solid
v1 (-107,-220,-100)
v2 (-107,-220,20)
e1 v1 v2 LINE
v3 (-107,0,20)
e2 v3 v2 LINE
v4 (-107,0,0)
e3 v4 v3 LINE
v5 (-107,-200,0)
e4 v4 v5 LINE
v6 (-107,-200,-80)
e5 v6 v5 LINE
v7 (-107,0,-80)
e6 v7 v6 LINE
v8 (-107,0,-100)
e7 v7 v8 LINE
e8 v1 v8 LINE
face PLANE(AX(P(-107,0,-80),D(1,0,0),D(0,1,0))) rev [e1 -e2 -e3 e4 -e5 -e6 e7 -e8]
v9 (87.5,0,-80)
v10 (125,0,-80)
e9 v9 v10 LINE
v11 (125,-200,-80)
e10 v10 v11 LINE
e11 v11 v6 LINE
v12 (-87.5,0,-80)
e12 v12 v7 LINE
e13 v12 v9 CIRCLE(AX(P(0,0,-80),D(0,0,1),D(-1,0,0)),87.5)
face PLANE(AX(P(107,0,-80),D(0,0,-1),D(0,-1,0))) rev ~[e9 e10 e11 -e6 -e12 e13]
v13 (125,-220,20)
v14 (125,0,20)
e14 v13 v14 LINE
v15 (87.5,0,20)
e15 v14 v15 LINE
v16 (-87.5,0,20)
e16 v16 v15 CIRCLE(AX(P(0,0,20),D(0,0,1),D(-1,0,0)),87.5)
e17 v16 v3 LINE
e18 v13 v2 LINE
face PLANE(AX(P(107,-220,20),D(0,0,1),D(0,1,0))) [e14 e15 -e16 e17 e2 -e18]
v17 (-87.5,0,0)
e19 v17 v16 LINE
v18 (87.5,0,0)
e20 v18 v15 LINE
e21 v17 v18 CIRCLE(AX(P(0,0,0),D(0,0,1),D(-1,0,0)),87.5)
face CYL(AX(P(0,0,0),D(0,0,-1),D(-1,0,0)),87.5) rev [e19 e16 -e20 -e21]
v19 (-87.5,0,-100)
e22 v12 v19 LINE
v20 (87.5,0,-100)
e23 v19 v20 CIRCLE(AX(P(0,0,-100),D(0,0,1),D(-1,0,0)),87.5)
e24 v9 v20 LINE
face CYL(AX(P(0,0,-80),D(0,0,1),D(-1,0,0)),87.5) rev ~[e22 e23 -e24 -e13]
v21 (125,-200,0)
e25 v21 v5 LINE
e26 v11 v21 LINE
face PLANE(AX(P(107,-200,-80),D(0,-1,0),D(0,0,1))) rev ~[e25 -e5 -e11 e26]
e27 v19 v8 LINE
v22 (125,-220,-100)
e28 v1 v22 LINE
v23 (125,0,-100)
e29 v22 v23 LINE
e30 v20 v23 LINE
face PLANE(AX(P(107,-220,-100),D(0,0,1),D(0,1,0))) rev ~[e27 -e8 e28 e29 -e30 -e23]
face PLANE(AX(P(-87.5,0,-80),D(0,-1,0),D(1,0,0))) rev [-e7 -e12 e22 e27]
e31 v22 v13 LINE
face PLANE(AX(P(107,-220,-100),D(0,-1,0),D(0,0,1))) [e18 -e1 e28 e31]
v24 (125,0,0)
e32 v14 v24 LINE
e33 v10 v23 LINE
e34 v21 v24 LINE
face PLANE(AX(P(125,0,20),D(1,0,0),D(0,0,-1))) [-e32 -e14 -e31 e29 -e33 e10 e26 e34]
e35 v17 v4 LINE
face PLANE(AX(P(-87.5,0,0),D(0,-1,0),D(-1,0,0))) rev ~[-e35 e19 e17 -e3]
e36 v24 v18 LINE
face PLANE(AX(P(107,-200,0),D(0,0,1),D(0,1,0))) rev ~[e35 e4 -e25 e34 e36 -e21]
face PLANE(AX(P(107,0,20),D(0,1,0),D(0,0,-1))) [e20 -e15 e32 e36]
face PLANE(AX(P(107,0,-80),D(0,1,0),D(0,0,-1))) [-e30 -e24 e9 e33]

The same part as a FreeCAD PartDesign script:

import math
import FreeCAD as App
import Part
import Sketcher
from FreeCAD import Vector


def add_polygon(sketch, points):
    """Adds a closed chain of lines whose ends are joined by coincident constraints."""
    first, n = sketch.GeometryCount, len(points)
    for a, b in zip(points, points[1:] + points[:1]):
        sketch.addGeometry(Part.LineSegment(App.Vector(*a, 0), App.Vector(*b, 0)), False)
    for i in range(n):
        sketch.addConstraint(Sketcher.Constraint("Coincident", first + i, 2, first + (i + 1) % n, 1))

doc = App.newDocument("Part")
params = doc.addObject("Spreadsheet::Sheet", "Params")
for row, (alias, value) in enumerate([
    ("sketch1_radius", "87.5 mm"),
    ("sketch1_height", "200 mm"),
    ("pad1_length", "20 mm"),
    ("sketch2_height", "20 mm"),
    ("pad2_length", "20 mm"),
    ("pad2_length2", "100 mm"),
    ("sketch3_width", "220 mm"),
    ("sketch3_width2", "200 mm"),
    ("sketch3_height", "120 mm"),
    ("sketch3_height2", "20 mm"),
    ("pad3_length", "18 mm"),
], start=1):
    params.set(f"A{row}", alias)
    params.set(f"B{row}", "=" + value)
    params.setAlias(f"B{row}", alias)

body = doc.addObject("PartDesign::Body", "Body")

# Sketch on XY plane
sketch1 = body.newObject("Sketcher::SketchObject", "Sketch")
sketch1.AttachmentSupport = (doc.getObject("XY_Plane"), [""])
sketch1.MapMode = "FlatFace"
sketch1.addGeometry([
    Part.ArcOfCircle(Part.Circle(Vector(0, 0, 0), Vector(0, 0, 1), 88), math.radians(180), math.radians(360)),  # 0
    Part.LineSegment(Vector(-88, 0, 0), Vector(-107, 0, 0)),  # 1
    Part.LineSegment(Vector(-107, 0, 0), Vector(-107, -200, 0)),  # 2
    Part.LineSegment(Vector(-107, -200, 0), Vector(107, -200, 0)),  # 3
    Part.LineSegment(Vector(107, -200, 0), Vector(107, 0, 0)),  # 4
    Part.LineSegment(Vector(107, 0, 0), Vector(88, 0, 0)),  # 5
], False)
sketch1.addConstraint([
    Sketcher.Constraint("Coincident", 0, 1, 1, 1),
    Sketcher.Constraint("Coincident", 1, 2, 2, 1),
    Sketcher.Constraint("Coincident", 2, 2, 3, 1),
    Sketcher.Constraint("Coincident", 3, 2, 4, 1),
    Sketcher.Constraint("Coincident", 4, 2, 5, 1),
    Sketcher.Constraint("Coincident", 5, 2, 0, 2),
    Sketcher.Constraint("Horizontal", 1),
    Sketcher.Constraint("Vertical", 2),
    Sketcher.Constraint("Horizontal", 3),
    Sketcher.Constraint("Vertical", 4),
    Sketcher.Constraint("Horizontal", 5),
    Sketcher.Constraint("Coincident", 0, 3, -1, 1),
    Sketcher.Constraint("Symmetric", 1, 2, 4, 2, -1, 1),
    Sketcher.Constraint("PointOnObject", 0, 1, -1),
    Sketcher.Constraint("Radius", 0, 87.5),
    Sketcher.Constraint("DistanceY", 2, 2, 2, 1, 200.0),
    Sketcher.Constraint("DistanceX", 1, 2, -1, 1, 107.0),
])
sketch1.setExpression("Constraints[14]", "Params.sketch1_radius")
sketch1.setExpression("Constraints[15]", "Params.sketch1_height")
pad1 = body.newObject("PartDesign::Pad", "Pad")
pad1.Profile = sketch1
pad1.setExpression("Length", "Params.pad1_length")

# Sketch on XY plane
sketch2 = body.newObject("Sketcher::SketchObject", "Sketch001")
sketch2.AttachmentSupport = (doc.getObject("XY_Plane"), [""])
sketch2.MapMode = "FlatFace"
add_polygon(sketch2, [(107, -200), (-107, -200), (-107, -220), (107, -220)])  # lines 0-3
sketch2.addConstraint([
    Sketcher.Constraint("Horizontal", 0),
    Sketcher.Constraint("Vertical", 1),
    Sketcher.Constraint("Horizontal", 2),
    Sketcher.Constraint("Vertical", 3),
    Sketcher.Constraint("DistanceY", 1, 2, 1, 1, 20.0),
    Sketcher.Constraint("DistanceX", 0, 2, -1, 1, 107.0),
    Sketcher.Constraint("DistanceY", 0, 2, -1, 1, 200.0),
    Sketcher.Constraint("DistanceX", -1, 1, 2, 2, 107.0),
])
sketch2.setExpression("Constraints[8]", "Params.sketch2_height")
pad2 = body.newObject("PartDesign::Pad", "Pad001")
pad2.Profile = sketch2
pad2.Type = "TwoLengths"
pad2.setExpression("Length", "Params.pad2_length")
pad2.setExpression("Length2", "Params.pad2_length2")
doc.recompute()

datumplane = body.newObject("PartDesign::Plane", "DatumPlane")
datumplane.AttachmentSupport = (doc.getObject("XY_Plane"), [""])
datumplane.MapMode = "FlatFace"
datumplane.AttachmentOffset = App.Placement(Vector(0, 0, -40), App.Rotation())
mirrored = body.newObject("PartDesign::Mirrored", "Mirrored")
mirrored.Originals = [pad1]
mirrored.MirrorPlane = (datumplane, [""])
body.Tip = mirrored

# Sketch on YZ plane
sketch3 = body.newObject("Sketcher::SketchObject", "Sketch002")
sketch3.AttachmentSupport = (doc.getObject("YZ_Plane"), [""])
sketch3.MapMode = "FlatFace"
sketch3.AttachmentOffset = App.Placement(Vector(0, 0, 107), App.Rotation())
add_polygon(sketch3, [(-220, 20), (-220, -100), (0, -100), (0, -80), (-200, -80), (-200, 0), (0, 0), (0, 20)])  # lines 0-7
sketch3.addConstraint([
    Sketcher.Constraint("Vertical", 0),
    Sketcher.Constraint("Horizontal", 1),
    Sketcher.Constraint("Vertical", 2),
    Sketcher.Constraint("Horizontal", 3),
    Sketcher.Constraint("Vertical", 4),
    Sketcher.Constraint("Horizontal", 5),
    Sketcher.Constraint("Vertical", 6),
    Sketcher.Constraint("Horizontal", 7),
    Sketcher.Constraint("Coincident", 5, 2, -1, 1),
    Sketcher.Constraint("PointOnObject", 1, 2, -2),
    Sketcher.Constraint("Equal", 2, 6),
    Sketcher.Constraint("DistanceX", 1, 1, 1, 2, 220.0),
    Sketcher.Constraint("DistanceX", 3, 2, 3, 1, 200.0),
    Sketcher.Constraint("DistanceY", 0, 2, 0, 1, 120.0),
    Sketcher.Constraint("DistanceY", 2, 1, 2, 2, 20.0),
])
sketch3.setExpression("Constraints[19]", "Params.sketch3_width")
sketch3.setExpression("Constraints[20]", "Params.sketch3_width2")
sketch3.setExpression("Constraints[21]", "Params.sketch3_height")
sketch3.setExpression("Constraints[22]", "Params.sketch3_height2")
pad3 = body.newObject("PartDesign::Pad", "Pad002")
pad3.Profile = sketch3
pad3.setExpression("Length", "Params.pad3_length")

doc.recompute()
